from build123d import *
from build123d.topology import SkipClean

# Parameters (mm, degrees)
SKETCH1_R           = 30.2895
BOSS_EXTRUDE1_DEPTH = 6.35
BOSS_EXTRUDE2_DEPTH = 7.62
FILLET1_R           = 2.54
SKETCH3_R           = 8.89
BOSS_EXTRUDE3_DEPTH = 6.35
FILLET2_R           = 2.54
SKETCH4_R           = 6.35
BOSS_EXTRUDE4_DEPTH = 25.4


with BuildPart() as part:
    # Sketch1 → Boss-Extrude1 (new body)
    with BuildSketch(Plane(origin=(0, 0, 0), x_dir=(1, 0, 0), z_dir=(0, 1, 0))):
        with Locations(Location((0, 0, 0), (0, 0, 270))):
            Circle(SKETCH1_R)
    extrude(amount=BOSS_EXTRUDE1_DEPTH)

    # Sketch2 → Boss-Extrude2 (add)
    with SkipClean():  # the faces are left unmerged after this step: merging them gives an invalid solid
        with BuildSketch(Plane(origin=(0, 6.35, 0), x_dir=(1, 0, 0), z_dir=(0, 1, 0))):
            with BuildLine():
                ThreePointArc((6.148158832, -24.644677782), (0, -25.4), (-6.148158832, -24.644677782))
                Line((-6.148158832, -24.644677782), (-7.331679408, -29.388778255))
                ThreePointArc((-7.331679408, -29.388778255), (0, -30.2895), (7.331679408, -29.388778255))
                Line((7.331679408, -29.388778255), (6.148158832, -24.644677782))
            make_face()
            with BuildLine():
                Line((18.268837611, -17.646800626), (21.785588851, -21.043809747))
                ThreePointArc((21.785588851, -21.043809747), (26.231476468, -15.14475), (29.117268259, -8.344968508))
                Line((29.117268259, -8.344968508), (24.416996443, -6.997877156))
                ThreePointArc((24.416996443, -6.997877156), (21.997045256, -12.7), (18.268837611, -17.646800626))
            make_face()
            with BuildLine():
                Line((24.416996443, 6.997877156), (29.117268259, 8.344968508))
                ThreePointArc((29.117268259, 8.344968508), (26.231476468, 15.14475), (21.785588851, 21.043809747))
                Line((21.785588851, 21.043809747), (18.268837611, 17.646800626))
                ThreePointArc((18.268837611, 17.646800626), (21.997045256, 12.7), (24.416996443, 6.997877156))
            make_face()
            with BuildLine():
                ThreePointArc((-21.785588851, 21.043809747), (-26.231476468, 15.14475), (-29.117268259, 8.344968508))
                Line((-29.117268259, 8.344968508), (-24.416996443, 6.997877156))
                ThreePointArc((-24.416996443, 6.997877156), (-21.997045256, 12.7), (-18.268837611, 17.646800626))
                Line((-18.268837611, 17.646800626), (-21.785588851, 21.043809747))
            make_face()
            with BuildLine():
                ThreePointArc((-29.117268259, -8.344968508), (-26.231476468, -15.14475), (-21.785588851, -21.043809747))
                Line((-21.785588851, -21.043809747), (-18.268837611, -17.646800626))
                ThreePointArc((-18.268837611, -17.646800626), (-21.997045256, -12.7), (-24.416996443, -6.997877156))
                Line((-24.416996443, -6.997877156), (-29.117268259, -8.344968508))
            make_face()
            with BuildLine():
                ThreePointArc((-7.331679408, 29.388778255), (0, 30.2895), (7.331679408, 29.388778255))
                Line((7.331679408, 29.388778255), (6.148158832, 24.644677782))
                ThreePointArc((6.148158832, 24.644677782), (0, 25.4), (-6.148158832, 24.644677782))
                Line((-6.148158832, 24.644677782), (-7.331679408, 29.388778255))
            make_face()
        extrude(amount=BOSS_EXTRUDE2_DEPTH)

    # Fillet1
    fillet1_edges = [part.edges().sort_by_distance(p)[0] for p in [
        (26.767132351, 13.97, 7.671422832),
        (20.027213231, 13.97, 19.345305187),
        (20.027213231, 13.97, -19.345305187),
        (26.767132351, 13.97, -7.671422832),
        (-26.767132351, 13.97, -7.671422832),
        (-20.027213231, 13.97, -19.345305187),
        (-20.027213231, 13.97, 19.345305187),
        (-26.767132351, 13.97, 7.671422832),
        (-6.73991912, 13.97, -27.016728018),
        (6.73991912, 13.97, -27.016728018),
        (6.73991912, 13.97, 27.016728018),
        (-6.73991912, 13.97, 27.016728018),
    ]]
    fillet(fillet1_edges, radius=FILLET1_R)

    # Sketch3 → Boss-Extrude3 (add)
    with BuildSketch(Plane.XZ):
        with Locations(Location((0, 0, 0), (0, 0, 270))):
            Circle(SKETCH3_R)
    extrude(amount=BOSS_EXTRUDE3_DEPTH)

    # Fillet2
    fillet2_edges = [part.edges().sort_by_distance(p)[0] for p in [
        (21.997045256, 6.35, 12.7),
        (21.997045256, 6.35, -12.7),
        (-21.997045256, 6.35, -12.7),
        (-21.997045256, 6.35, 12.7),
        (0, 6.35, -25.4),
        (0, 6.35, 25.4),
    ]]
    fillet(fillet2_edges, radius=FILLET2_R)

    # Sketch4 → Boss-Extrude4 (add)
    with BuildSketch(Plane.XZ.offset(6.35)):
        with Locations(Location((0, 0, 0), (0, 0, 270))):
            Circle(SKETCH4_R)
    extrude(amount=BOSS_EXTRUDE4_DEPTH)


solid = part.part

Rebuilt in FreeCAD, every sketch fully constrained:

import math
import FreeCAD as App
import Part
import Sketcher
Q = App.Units.Quantity


def edges_at(feature, points):
    """Names of the edges that pass closest to the given points."""
    edges = feature.Shape.Edges
    near = lambda p: min(range(len(edges)), key=lambda i: edges[i].distToShape(Part.Vertex(*p))[0])
    return sorted({f"Edge{near(p) + 1}" for p in points})

doc = App.newDocument("Part")
body = doc.addObject("PartDesign::Body", "Body")

# Sketch on XZ plane
sketch1 = body.newObject("Sketcher::SketchObject", "Sketch")
sketch1.AttachmentSupport = (doc.getObject("XZ_Plane"), [""])
sketch1.MapMode = "FlatFace"
sketch1.addGeometry(Part.Circle(App.Vector(0, 0, 0), App.Vector(0, 0, 1), 30), False)
sketch1.addConstraint([
    Sketcher.Constraint("Coincident", 0, 3, -1, 1),
    Sketcher.Constraint("Diameter", 0, Q("2.385 in")),
])
pad1 = body.newObject("PartDesign::Pad", "Pad")
pad1.Profile = sketch1
pad1.Length = Q("0.25 in")
pad1.Reversed = True

# Sketch on XZ plane
sketch2 = body.newObject("Sketcher::SketchObject", "Sketch001")
sketch2.AttachmentSupport = (doc.getObject("XZ_Plane"), [""])
sketch2.MapMode = "FlatFace"
sketch2.AttachmentOffset = App.Placement(App.Vector(0, 0, -0.25 * 25.4), App.Rotation())
sketch2.addGeometry([
    Part.ArcOfCircle(Part.Circle(App.Vector(0, 0, 0), App.Vector(0, 0, 1), 25.4), math.radians(76), math.radians(104)),  # 0
    Part.LineSegment(App.Vector(-6.1, 24.6, 0), App.Vector(-7.3, 29.4, 0)),  # 1
    Part.ArcOfCircle(Part.Circle(App.Vector(0, 0, 0), App.Vector(0, 0, 1), 30.3), math.radians(76), math.radians(104)),  # 2
    Part.LineSegment(App.Vector(7.3, 29.4, 0), App.Vector(6.1, 24.6, 0)),  # 3
    Part.LineSegment(App.Vector(18.3, 17.6, 0), App.Vector(21.8, 21, 0)),  # 4
    Part.ArcOfCircle(Part.Circle(App.Vector(0, 0, 0), App.Vector(0, 0, 1), 30.3), math.radians(16), math.radians(44)),  # 5
    Part.LineSegment(App.Vector(29.1, 8.3, 0), App.Vector(24.4, 7, 0)),  # 6
    Part.ArcOfCircle(Part.Circle(App.Vector(0, 0, 0), App.Vector(0, 0, 1), 25.4), math.radians(16), math.radians(44)),  # 7
    Part.LineSegment(App.Vector(24.4, -7, 0), App.Vector(29.1, -8.3, 0)),  # 8
    Part.ArcOfCircle(Part.Circle(App.Vector(0, 0, 0), App.Vector(0, 0, 1), 30.3), math.radians(-44), math.radians(-16)),  # 9
    Part.LineSegment(App.Vector(21.8, -21, 0), App.Vector(18.3, -17.6, 0)),  # 10
    Part.ArcOfCircle(Part.Circle(App.Vector(0, 0, 0), App.Vector(0, 0, 1), 25.4), math.radians(-44), math.radians(-16)),  # 11
    Part.ArcOfCircle(Part.Circle(App.Vector(0, 0, 0), App.Vector(0, 0, 1), 30.3), math.radians(-164), math.radians(-136)),  # 12
    Part.LineSegment(App.Vector(-29.1, -8.3, 0), App.Vector(-24.4, -7, 0)),  # 13
    Part.ArcOfCircle(Part.Circle(App.Vector(0, 0, 0), App.Vector(0, 0, 1), 25.4), math.radians(-164), math.radians(-136)),  # 14
    Part.LineSegment(App.Vector(-18.3, -17.6, 0), App.Vector(-21.8, -21, 0)),  # 15
    Part.ArcOfCircle(Part.Circle(App.Vector(0, 0, 0), App.Vector(0, 0, 1), 30.3), math.radians(136), math.radians(164)),  # 16
    Part.LineSegment(App.Vector(-21.8, 21, 0), App.Vector(-18.3, 17.6, 0)),  # 17
    Part.ArcOfCircle(Part.Circle(App.Vector(0, 0, 0), App.Vector(0, 0, 1), 25.4), math.radians(136), math.radians(164)),  # 18
    Part.LineSegment(App.Vector(-24.4, 7, 0), App.Vector(-29.1, 8.3, 0)),  # 19
    Part.ArcOfCircle(Part.Circle(App.Vector(0, 0, 0), App.Vector(0, 0, 1), 30.3), math.radians(-104), math.radians(-76)),  # 20
    Part.LineSegment(App.Vector(-7.3, -29.4, 0), App.Vector(-6.1, -24.6, 0)),  # 21
    Part.ArcOfCircle(Part.Circle(App.Vector(0, 0, 0), App.Vector(0, 0, 1), 25.4), math.radians(-104), math.radians(-76)),  # 22
    Part.LineSegment(App.Vector(6.1, -24.6, 0), App.Vector(7.3, -29.4, 0)),  # 23
], False)
sketch2.addConstraint([
    Sketcher.Constraint("Coincident", 0, 2, 1, 1),
    Sketcher.Constraint("Coincident", 1, 2, 2, 2),
    Sketcher.Constraint("Coincident", 2, 1, 3, 1),
    Sketcher.Constraint("Coincident", 3, 2, 0, 1),
    Sketcher.Constraint("Coincident", 4, 2, 5, 2),
    Sketcher.Constraint("Coincident", 5, 1, 6, 1),
    Sketcher.Constraint("Coincident", 6, 2, 7, 1),
    Sketcher.Constraint("Coincident", 7, 2, 4, 1),
    Sketcher.Constraint("Coincident", 8, 2, 9, 2),
    Sketcher.Constraint("Coincident", 9, 1, 10, 1),
    Sketcher.Constraint("Coincident", 10, 2, 11, 1),
    Sketcher.Constraint("Coincident", 11, 2, 8, 1),
    Sketcher.Constraint("Coincident", 12, 1, 13, 1),
    Sketcher.Constraint("Coincident", 13, 2, 14, 1),
    Sketcher.Constraint("Coincident", 14, 2, 15, 1),
    Sketcher.Constraint("Coincident", 15, 2, 12, 2),
    Sketcher.Constraint("Coincident", 16, 1, 17, 1),
    Sketcher.Constraint("Coincident", 17, 2, 18, 1),
    Sketcher.Constraint("Coincident", 18, 2, 19, 1),
    Sketcher.Constraint("Coincident", 19, 2, 16, 2),
    Sketcher.Constraint("Coincident", 20, 1, 21, 1),
    Sketcher.Constraint("Coincident", 21, 2, 22, 1),
    Sketcher.Constraint("Coincident", 22, 2, 23, 1),
    Sketcher.Constraint("Coincident", 23, 2, 20, 2),
    Sketcher.Constraint("Coincident", 0, 3, -1, 1),
    Sketcher.Constraint("Coincident", 2, 3, -1, 1),
    Sketcher.Constraint("Coincident", 5, 3, -1, 1),
    Sketcher.Constraint("Coincident", 7, 3, -1, 1),
    Sketcher.Constraint("Coincident", 9, 3, -1, 1),
    Sketcher.Constraint("Coincident", 11, 3, -1, 1),
    Sketcher.Constraint("Coincident", 12, 3, -1, 1),
    Sketcher.Constraint("Coincident", 14, 3, -1, 1),
    Sketcher.Constraint("Coincident", 16, 3, -1, 1),
    Sketcher.Constraint("Coincident", 18, 3, -1, 1),
    Sketcher.Constraint("Coincident", 20, 3, -1, 1),
    Sketcher.Constraint("Coincident", 22, 3, -1, 1),
    Sketcher.Constraint("Equal", 2, 5),
    Sketcher.Constraint("Equal", 0, 7),
    Sketcher.Constraint("Equal", 5, 9),
    Sketcher.Constraint("Equal", 7, 11),
    Sketcher.Constraint("Equal", 9, 12),
    Sketcher.Constraint("Equal", 11, 14),
    Sketcher.Constraint("Equal", 12, 16),
    Sketcher.Constraint("Equal", 14, 18),
    Sketcher.Constraint("Equal", 16, 20),
    Sketcher.Constraint("Equal", 18, 22),
    Sketcher.Constraint("Parallel", 6, 13),
    Sketcher.Constraint("Parallel", 4, 15),
    Sketcher.Constraint("Parallel", 10, 17),
    Sketcher.Constraint("Parallel", 8, 19),
    Sketcher.Constraint("Parallel", 3, 21),
    Sketcher.Constraint("Parallel", 1, 23),
    Sketcher.Constraint("Horizontal", 1, 2, 2, 1),
    Sketcher.Constraint("Horizontal", 0, 2, 3, 2),
    Sketcher.Constraint("Horizontal", 8, 2, 12, 1),
    Sketcher.Constraint("Horizontal", 11, 2, 13, 2),
    Sketcher.Constraint("Horizontal", 10, 2, 14, 2),
    Sketcher.Constraint("Horizontal", 9, 1, 15, 2),
    Sketcher.Constraint("Horizontal", 4, 2, 16, 1),
    Sketcher.Constraint("Horizontal", 6, 2, 18, 2),
    Sketcher.Constraint("Horizontal", 21, 2, 22, 2),
    Sketcher.Constraint("Vertical", 5, 1, 8, 2),
    Sketcher.Constraint("Vertical", 4, 2, 9, 1),
    Sketcher.Constraint("Vertical", 1, 2, 20, 1),
    Sketcher.Constraint("Radius", 0, Q("1 in")),
    Sketcher.Constraint("Radius", 2, Q("1.1925 in")),
    Sketcher.Constraint("DistanceY", -1, 1, 7, 2, 17.646801),
    Sketcher.Constraint("DistanceY", 0, 2, 1, 2, 4.7441),
    Sketcher.Constraint("DistanceY", 20, 1, 13, 2, 22.390901),
    Sketcher.Constraint("DistanceX", 0, 2, -1, 1, 6.148159),
    Sketcher.Constraint("DistanceX", -1, 1, 4, 2, 21.785589),
    Sketcher.Constraint("DistanceX", -1, 1, 5, 1, 29.117268),
])
pad2 = body.newObject("PartDesign::Pad", "Pad001")
pad2.Profile = sketch2
pad2.Length = Q("0.3 in")
pad2.Reversed = True
doc.recompute()

fillet = body.newObject("PartDesign::Fillet", "Fillet")
fillet.Base = (pad2, edges_at(pad2, [
    (26.767, 13.97, 7.671),
    (20.027, 13.97, 19.345),
    (20.027, 13.97, -19.345),
    (26.767, 13.97, -7.671),
    (-26.767, 13.97, -7.671),
    (-20.027, 13.97, -19.345),
    (-20.027, 13.97, 19.345),
    (-26.767, 13.97, 7.671),
    (-6.74, 13.97, -27.017),
    (6.74, 13.97, -27.017),
    (6.74, 13.97, 27.017),
    (-6.74, 13.97, 27.017),
]))
fillet.Radius = Q("0.1 in")

# Sketch on XZ plane
sketch3 = body.newObject("Sketcher::SketchObject", "Sketch002")
sketch3.AttachmentSupport = (doc.getObject("XZ_Plane"), [""])
sketch3.MapMode = "FlatFace"
sketch3.addGeometry(Part.Circle(App.Vector(0, 0, 0), App.Vector(0, 0, 1), 9), False)
sketch3.addConstraint([
    Sketcher.Constraint("Coincident", 0, 3, -1, 1),
    Sketcher.Constraint("Diameter", 0, Q("0.7 in")),
])
pad3 = body.newObject("PartDesign::Pad", "Pad002")
pad3.Profile = sketch3
pad3.Length = Q("0.25 in")
doc.recompute()

fillet2 = body.newObject("PartDesign::Fillet", "Fillet001")
fillet2.Base = (pad3, edges_at(pad3, [
    (21.997, 6.35, 12.7),
    (21.997, 6.35, -12.7),
    (-21.997, 6.35, -12.7),
    (-21.997, 6.35, 12.7),
    (0, 6.35, -25.4),
    (0, 6.35, 25.4),
]))
fillet2.Radius = Q("0.1 in")

# Sketch on XZ plane
sketch4 = body.newObject("Sketcher::SketchObject", "Sketch003")
sketch4.AttachmentSupport = (doc.getObject("XZ_Plane"), [""])
sketch4.MapMode = "FlatFace"
sketch4.AttachmentOffset = App.Placement(App.Vector(0, 0, 0.25 * 25.4), App.Rotation())
sketch4.addGeometry(Part.Circle(App.Vector(0, 0, 0), App.Vector(0, 0, 1), 6), False)
sketch4.addConstraint([
    Sketcher.Constraint("Coincident", 0, 3, -1, 1),
    Sketcher.Constraint("Diameter", 0, Q("0.5 in")),
])
pad4 = body.newObject("PartDesign::Pad", "Pad003")
pad4.Profile = sketch4
pad4.Length = Q("1 in")

doc.recompute()
